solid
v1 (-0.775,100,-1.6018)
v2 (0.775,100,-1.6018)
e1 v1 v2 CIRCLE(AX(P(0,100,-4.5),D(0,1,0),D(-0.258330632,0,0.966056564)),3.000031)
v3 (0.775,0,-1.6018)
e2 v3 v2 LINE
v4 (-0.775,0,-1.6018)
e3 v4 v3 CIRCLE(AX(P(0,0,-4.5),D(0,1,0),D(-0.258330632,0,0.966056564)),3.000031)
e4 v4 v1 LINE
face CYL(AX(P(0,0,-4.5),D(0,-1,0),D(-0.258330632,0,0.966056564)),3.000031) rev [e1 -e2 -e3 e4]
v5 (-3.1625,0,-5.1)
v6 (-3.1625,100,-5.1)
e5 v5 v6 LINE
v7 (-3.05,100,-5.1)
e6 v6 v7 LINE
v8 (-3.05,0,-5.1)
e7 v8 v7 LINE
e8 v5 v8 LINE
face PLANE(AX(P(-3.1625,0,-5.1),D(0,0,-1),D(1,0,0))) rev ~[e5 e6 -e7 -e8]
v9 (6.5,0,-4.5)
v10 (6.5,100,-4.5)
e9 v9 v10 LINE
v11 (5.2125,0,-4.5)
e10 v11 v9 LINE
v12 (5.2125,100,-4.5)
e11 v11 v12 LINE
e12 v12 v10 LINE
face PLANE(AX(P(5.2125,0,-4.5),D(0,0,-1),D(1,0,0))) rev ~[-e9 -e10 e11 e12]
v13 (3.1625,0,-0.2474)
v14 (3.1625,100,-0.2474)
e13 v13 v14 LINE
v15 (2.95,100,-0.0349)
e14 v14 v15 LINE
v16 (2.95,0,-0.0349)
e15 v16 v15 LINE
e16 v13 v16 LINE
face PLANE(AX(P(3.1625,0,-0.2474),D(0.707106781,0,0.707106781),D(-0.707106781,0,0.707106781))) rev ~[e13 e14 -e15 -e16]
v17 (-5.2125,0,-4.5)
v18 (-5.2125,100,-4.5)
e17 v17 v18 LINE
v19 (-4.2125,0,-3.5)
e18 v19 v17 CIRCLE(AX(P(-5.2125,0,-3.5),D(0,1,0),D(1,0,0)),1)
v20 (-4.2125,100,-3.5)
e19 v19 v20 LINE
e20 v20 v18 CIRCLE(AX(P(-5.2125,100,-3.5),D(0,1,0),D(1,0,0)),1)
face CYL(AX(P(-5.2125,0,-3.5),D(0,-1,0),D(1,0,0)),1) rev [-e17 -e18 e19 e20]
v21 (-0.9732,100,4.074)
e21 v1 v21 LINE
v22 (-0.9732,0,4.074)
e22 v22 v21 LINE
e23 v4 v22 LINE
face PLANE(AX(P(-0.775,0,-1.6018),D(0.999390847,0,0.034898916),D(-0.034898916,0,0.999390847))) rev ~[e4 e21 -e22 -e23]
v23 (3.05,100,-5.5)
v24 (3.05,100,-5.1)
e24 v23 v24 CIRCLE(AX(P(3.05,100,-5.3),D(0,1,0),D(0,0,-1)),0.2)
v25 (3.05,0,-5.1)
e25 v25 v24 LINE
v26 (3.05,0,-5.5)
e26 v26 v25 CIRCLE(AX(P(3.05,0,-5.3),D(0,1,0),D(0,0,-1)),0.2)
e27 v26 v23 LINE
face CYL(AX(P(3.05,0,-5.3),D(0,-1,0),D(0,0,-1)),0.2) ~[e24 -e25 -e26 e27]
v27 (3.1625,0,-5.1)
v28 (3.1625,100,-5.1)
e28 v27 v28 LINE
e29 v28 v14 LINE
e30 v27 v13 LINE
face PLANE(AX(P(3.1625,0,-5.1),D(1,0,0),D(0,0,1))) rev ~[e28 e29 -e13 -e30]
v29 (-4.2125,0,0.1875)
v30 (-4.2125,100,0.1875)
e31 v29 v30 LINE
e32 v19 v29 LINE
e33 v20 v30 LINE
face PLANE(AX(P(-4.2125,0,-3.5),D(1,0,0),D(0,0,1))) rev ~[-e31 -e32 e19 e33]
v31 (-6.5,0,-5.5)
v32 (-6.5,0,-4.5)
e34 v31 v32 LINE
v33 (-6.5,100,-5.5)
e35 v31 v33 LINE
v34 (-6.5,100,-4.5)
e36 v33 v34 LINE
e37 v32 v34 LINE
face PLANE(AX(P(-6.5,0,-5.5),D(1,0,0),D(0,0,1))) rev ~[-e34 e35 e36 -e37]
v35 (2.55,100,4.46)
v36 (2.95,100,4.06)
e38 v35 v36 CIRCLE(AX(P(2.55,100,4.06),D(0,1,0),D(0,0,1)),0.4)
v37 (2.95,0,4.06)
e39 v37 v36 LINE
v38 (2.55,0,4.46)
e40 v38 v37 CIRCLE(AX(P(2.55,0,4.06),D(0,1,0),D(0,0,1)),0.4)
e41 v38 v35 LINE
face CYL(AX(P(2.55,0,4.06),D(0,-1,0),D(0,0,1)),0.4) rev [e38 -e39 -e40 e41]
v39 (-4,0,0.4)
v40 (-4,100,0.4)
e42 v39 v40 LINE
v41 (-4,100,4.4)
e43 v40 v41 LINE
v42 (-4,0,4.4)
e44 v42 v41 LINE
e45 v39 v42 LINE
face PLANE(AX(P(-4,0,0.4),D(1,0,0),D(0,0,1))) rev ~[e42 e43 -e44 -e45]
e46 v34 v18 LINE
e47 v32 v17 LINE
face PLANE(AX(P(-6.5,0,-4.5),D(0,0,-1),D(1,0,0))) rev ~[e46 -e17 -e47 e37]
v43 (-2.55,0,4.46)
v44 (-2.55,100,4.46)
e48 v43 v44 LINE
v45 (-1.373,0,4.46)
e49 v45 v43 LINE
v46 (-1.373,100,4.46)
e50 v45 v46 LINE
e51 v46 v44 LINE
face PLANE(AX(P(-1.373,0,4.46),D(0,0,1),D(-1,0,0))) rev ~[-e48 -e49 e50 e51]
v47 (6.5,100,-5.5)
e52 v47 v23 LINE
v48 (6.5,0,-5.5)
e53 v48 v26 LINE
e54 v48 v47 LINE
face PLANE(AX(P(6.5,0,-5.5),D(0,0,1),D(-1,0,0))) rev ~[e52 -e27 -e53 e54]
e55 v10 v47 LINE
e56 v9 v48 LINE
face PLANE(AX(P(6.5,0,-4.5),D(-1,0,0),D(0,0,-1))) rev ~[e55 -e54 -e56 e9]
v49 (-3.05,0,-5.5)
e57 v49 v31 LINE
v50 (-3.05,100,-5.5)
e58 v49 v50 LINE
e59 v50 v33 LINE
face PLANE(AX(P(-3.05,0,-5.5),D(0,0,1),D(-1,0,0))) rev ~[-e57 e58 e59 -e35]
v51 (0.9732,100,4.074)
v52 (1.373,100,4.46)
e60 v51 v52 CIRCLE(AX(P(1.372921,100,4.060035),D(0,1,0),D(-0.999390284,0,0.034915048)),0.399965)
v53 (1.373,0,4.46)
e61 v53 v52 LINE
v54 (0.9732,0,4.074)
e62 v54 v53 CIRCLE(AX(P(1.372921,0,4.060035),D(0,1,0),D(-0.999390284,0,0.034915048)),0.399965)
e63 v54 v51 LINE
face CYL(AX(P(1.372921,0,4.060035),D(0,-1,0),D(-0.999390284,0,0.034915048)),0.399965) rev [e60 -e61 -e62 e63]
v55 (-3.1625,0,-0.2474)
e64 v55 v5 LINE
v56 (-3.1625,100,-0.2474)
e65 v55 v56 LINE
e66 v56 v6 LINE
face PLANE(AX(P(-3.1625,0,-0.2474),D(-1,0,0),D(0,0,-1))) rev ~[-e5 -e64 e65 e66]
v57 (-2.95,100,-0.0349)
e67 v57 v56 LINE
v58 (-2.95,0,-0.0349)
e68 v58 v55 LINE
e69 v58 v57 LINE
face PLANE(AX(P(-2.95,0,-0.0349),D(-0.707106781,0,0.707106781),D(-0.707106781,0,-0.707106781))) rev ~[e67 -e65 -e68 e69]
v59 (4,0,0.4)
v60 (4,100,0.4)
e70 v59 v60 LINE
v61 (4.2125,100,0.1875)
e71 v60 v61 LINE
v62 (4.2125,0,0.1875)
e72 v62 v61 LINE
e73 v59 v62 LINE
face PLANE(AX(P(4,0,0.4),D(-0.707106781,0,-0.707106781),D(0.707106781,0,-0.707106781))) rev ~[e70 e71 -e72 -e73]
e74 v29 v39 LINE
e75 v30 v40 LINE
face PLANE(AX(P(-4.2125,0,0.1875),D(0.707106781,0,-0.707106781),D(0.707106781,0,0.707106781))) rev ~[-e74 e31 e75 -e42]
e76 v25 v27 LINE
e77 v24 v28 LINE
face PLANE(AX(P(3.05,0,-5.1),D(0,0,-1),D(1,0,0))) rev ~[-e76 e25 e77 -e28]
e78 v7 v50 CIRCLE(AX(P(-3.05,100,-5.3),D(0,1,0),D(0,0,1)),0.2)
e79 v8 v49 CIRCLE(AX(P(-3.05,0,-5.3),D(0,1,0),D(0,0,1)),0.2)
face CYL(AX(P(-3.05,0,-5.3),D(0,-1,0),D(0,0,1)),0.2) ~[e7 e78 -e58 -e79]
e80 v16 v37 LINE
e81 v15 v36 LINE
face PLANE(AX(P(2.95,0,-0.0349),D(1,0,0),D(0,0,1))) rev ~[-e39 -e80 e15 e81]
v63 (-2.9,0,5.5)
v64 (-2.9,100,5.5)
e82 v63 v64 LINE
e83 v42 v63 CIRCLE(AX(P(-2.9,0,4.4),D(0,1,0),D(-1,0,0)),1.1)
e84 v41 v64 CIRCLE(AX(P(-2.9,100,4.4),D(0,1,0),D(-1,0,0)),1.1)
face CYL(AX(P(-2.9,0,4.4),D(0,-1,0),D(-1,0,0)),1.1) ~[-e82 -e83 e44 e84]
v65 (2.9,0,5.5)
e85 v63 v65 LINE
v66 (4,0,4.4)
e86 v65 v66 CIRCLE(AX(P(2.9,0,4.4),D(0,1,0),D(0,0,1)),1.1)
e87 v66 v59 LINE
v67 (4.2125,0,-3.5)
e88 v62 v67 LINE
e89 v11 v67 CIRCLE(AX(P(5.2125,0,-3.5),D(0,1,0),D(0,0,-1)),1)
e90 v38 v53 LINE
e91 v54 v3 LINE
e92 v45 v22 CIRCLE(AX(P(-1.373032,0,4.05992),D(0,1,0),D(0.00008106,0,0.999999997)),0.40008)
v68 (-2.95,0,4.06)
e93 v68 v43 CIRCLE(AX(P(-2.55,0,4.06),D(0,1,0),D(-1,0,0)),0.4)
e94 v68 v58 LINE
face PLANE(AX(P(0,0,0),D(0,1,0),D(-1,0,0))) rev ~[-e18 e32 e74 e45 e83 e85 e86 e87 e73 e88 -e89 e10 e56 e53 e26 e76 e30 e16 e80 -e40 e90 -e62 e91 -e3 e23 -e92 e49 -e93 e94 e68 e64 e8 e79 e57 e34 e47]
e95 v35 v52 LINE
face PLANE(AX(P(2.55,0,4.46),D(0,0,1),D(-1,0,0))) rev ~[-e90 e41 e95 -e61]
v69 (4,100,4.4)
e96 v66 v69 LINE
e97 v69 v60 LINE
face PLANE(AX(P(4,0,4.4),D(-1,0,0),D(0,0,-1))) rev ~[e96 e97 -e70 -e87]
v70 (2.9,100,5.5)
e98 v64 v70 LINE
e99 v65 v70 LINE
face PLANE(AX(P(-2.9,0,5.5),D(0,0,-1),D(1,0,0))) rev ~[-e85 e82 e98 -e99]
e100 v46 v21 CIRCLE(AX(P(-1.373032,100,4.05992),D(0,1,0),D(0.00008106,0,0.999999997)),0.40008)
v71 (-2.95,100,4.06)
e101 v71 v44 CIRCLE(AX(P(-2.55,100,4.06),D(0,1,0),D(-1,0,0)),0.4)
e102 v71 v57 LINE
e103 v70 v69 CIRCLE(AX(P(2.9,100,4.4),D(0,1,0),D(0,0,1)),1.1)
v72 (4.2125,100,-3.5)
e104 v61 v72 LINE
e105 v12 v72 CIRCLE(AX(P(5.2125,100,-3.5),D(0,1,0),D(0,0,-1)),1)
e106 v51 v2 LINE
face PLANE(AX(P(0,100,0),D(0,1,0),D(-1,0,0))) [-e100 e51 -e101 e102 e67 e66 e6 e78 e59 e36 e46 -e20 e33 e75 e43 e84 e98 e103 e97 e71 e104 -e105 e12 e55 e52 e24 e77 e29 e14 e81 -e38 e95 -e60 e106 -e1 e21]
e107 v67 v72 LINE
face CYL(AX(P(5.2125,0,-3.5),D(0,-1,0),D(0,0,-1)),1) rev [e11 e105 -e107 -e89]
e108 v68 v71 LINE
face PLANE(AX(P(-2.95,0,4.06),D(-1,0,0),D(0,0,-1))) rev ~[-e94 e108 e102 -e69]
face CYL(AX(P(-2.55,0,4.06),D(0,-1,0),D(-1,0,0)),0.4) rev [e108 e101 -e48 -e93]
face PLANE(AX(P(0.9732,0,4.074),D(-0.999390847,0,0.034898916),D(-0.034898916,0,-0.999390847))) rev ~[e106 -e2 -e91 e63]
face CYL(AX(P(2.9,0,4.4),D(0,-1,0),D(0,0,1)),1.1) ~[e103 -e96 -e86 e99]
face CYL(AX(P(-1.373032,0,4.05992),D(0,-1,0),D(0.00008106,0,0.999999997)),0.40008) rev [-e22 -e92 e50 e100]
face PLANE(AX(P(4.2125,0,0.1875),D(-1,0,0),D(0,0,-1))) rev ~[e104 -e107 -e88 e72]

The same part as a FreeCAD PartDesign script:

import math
import FreeCAD as App
import Part
import Sketcher
Q = App.Units.Quantity

doc = App.newDocument("Part")
body = doc.addObject("PartDesign::Body", "Body")

# Sketch on XZ plane
sketch1 = body.newObject("Sketcher::SketchObject", "Sketch")
sketch1.AttachmentSupport = (doc.getObject("XZ_Plane"), [""])
sketch1.MapMode = "FlatFace"
sketch1.addGeometry([
    Part.LineSegment(App.Vector(6.5, -5.5, 0), App.Vector(3.05, -5.5, 0)),  # 0
    Part.ArcOfCircle(Part.Circle(App.Vector(3.05, -5.3, 0), App.Vector(0, 0, 1), 0.2), math.radians(90), math.radians(270)),  # 1
    Part.LineSegment(App.Vector(3.05, -5.1, 0), App.Vector(3.16, -5.1, 0)),  # 2
    Part.LineSegment(App.Vector(3.16, -5.1, 0), App.Vector(3.16, -0.25, 0)),  # 3
    Part.LineSegment(App.Vector(3.16, -0.25, 0), App.Vector(2.95, -0.03, 0)),  # 4
    Part.LineSegment(App.Vector(2.95, -0.03, 0), App.Vector(2.95, 4.06, 0)),  # 5
    Part.ArcOfCircle(Part.Circle(App.Vector(2.55, 4.06, 0), App.Vector(0, 0, 1), 0.4), math.radians(0), math.radians(90)),  # 6
    Part.LineSegment(App.Vector(2.55, 4.46, 0), App.Vector(1.37, 4.46, 0)),  # 7
    Part.ArcOfCircle(Part.Circle(App.Vector(1.37, 4.06, 0), App.Vector(0, 0, 1), 0.4), math.radians(90), math.radians(178)),  # 8
    Part.LineSegment(App.Vector(0.97, 4.07, 0), App.Vector(0.78, -1.6, 0)),  # 9
    Part.ArcOfCircle(Part.Circle(App.Vector(0, -4.5, 0), App.Vector(0, 0, 1), 3), math.radians(75), math.radians(105)),  # 10
    Part.LineSegment(App.Vector(-0.78, -1.6, 0), App.Vector(-0.97, 4.07, 0)),  # 11
    Part.ArcOfCircle(Part.Circle(App.Vector(-1.37, 4.06, 0), App.Vector(0, 0, 1), 0.4), math.radians(2), math.radians(90)),  # 12
    Part.LineSegment(App.Vector(-1.37, 4.46, 0), App.Vector(-2.55, 4.46, 0)),  # 13
    Part.ArcOfCircle(Part.Circle(App.Vector(-2.55, 4.06, 0), App.Vector(0, 0, 1), 0.4), math.radians(90), math.radians(180)),  # 14
    Part.LineSegment(App.Vector(-2.95, 4.06, 0), App.Vector(-2.95, -0.03, 0)),  # 15
    Part.LineSegment(App.Vector(-2.95, -0.03, 0), App.Vector(-3.16, -0.25, 0)),  # 16
    Part.LineSegment(App.Vector(-3.16, -0.25, 0), App.Vector(-3.16, -5.1, 0)),  # 17
    Part.LineSegment(App.Vector(-3.16, -5.1, 0), App.Vector(-3.05, -5.1, 0)),  # 18
    Part.ArcOfCircle(Part.Circle(App.Vector(-3.05, -5.3, 0), App.Vector(0, 0, 1), 0.2), math.radians(-90), math.radians(90)),  # 19
    Part.LineSegment(App.Vector(-3.05, -5.5, 0), App.Vector(-6.5, -5.5, 0)),  # 20
    Part.LineSegment(App.Vector(-6.5, -5.5, 0), App.Vector(-6.5, -4.5, 0)),  # 21
    Part.LineSegment(App.Vector(-6.5, -4.5, 0), App.Vector(-5.21, -4.5, 0)),  # 22
    Part.ArcOfCircle(Part.Circle(App.Vector(-5.21, -3.5, 0), App.Vector(0, 0, 1), 1), math.radians(-90), math.radians(0)),  # 23
    Part.LineSegment(App.Vector(-4.21, -3.5, 0), App.Vector(-4.21, 0.19, 0)),  # 24
    Part.LineSegment(App.Vector(-4.21, 0.19, 0), App.Vector(-4, 0.4, 0)),  # 25
    Part.LineSegment(App.Vector(-4, 0.4, 0), App.Vector(-4, 4.4, 0)),  # 26
    Part.ArcOfCircle(Part.Circle(App.Vector(-2.9, 4.4, 0), App.Vector(0, 0, 1), 1.1), math.radians(90), math.radians(180)),  # 27
    Part.LineSegment(App.Vector(-2.9, 5.5, 0), App.Vector(2.9, 5.5, 0)),  # 28
    Part.ArcOfCircle(Part.Circle(App.Vector(2.9, 4.4, 0), App.Vector(0, 0, 1), 1.1), math.radians(0), math.radians(90)),  # 29
    Part.LineSegment(App.Vector(4, 4.4, 0), App.Vector(4, 0.4, 0)),  # 30
    Part.LineSegment(App.Vector(4, 0.4, 0), App.Vector(4.21, 0.19, 0)),  # 31
    Part.LineSegment(App.Vector(4.21, 0.19, 0), App.Vector(4.21, -3.5, 0)),  # 32
    Part.ArcOfCircle(Part.Circle(App.Vector(5.21, -3.5, 0), App.Vector(0, 0, 1), 1), math.radians(180), math.radians(270)),  # 33
    Part.LineSegment(App.Vector(5.21, -4.5, 0), App.Vector(6.5, -4.5, 0)),  # 34
    Part.LineSegment(App.Vector(6.5, -4.5, 0), App.Vector(6.5, -5.5, 0)),  # 35
], False)
sketch1.addConstraint([
    Sketcher.Constraint("Tangent", 0, 2, 1, 2),
    Sketcher.Constraint("Tangent", 1, 1, 2, 1),
    Sketcher.Constraint("Coincident", 2, 2, 3, 1),
    Sketcher.Constraint("Coincident", 3, 2, 4, 1),
    Sketcher.Constraint("Coincident", 4, 2, 5, 1),
    Sketcher.Constraint("Tangent", 5, 2, 6, 1),
    Sketcher.Constraint("Tangent", 6, 2, 7, 1),
    Sketcher.Constraint("Tangent", 7, 2, 8, 1),
    Sketcher.Constraint("Tangent", 8, 2, 9, 1),
    Sketcher.Constraint("Coincident", 9, 2, 10, 1),
    Sketcher.Constraint("Coincident", 10, 2, 11, 1),
    Sketcher.Constraint("Tangent", 11, 2, 12, 1),
    Sketcher.Constraint("Tangent", 12, 2, 13, 1),
    Sketcher.Constraint("Tangent", 13, 2, 14, 1),
    Sketcher.Constraint("Tangent", 14, 2, 15, 1),
    Sketcher.Constraint("Coincident", 15, 2, 16, 1),
    Sketcher.Constraint("Coincident", 16, 2, 17, 1),
    Sketcher.Constraint("Coincident", 17, 2, 18, 1),
    Sketcher.Constraint("Tangent", 18, 2, 19, 2),
    Sketcher.Constraint("Tangent", 19, 1, 20, 1),
    Sketcher.Constraint("Coincident", 20, 2, 21, 1),
    Sketcher.Constraint("Coincident", 21, 2, 22, 1),
    Sketcher.Constraint("Tangent", 22, 2, 23, 1),
    Sketcher.Constraint("Tangent", 23, 2, 24, 1),
    Sketcher.Constraint("Coincident", 24, 2, 25, 1),
    Sketcher.Constraint("Coincident", 25, 2, 26, 1),
    Sketcher.Constraint("Tangent", 26, 2, 27, 2),
    Sketcher.Constraint("Tangent", 27, 1, 28, 1),
    Sketcher.Constraint("Tangent", 28, 2, 29, 2),
    Sketcher.Constraint("Tangent", 29, 1, 30, 1),
    Sketcher.Constraint("Coincident", 30, 2, 31, 1),
    Sketcher.Constraint("Coincident", 31, 2, 32, 1),
    Sketcher.Constraint("Tangent", 32, 2, 33, 1),
    Sketcher.Constraint("Tangent", 33, 2, 34, 1),
    Sketcher.Constraint("Coincident", 34, 2, 35, 1),
    Sketcher.Constraint("Coincident", 35, 2, 0, 1),
    Sketcher.Constraint("Horizontal", 0),
    Sketcher.Constraint("Horizontal", 2),
    Sketcher.Constraint("Vertical", 3),
    Sketcher.Constraint("Vertical", 5),
    Sketcher.Constraint("Horizontal", 7),
    Sketcher.Constraint("Horizontal", 13),
    Sketcher.Constraint("Vertical", 15),
    Sketcher.Constraint("Vertical", 17),
    Sketcher.Constraint("Horizontal", 18),
    Sketcher.Constraint("Horizontal", 20),
    Sketcher.Constraint("Vertical", 21),
    Sketcher.Constraint("Horizontal", 22),
    Sketcher.Constraint("Vertical", 24),
    Sketcher.Constraint("Vertical", 26),
    Sketcher.Constraint("Horizontal", 28),
    Sketcher.Constraint("Vertical", 30),
    Sketcher.Constraint("Vertical", 32),
    Sketcher.Constraint("Horizontal", 34),
    Sketcher.Constraint("Vertical", 35),
    Sketcher.Constraint("Equal", 6, 8),
    Sketcher.Constraint("Equal", 8, 12),
    Sketcher.Constraint("Equal", 12, 14),
    Sketcher.Constraint("Equal", 1, 19),
    Sketcher.Constraint("Equal", 27, 29),
    Sketcher.Constraint("Equal", 23, 33),
    Sketcher.Constraint("Symmetric", 8, 3, 12, 3, -2),
    Sketcher.Constraint("Symmetric", 1, 3, 19, 3, -2),
    Sketcher.Constraint("Symmetric", 23, 3, 33, 3, -2),
    Sketcher.Constraint("Symmetric", 9, 2, 10, 2, -2),
    Sketcher.Constraint("Symmetric", 4, 2, 15, 2, -2),
    Sketcher.Constraint("Symmetric", 3, 2, 16, 2, -2),
    Sketcher.Constraint("Symmetric", 25, 2, 30, 2, -2),
    Sketcher.Constraint("Perpendicular", 4, 16),
    Sketcher.Constraint("Parallel", 16, 25),
    Sketcher.Constraint("Perpendicular", 25, 31),
    Sketcher.Constraint("Horizontal", 10, 3, 21, 2),
    Sketcher.Constraint("Equal", 0, 20),
    Sketcher.Constraint("Equal", 16, 25),
    Sketcher.Constraint("Radius", 10, Q("3 mm")),
    Sketcher.Constraint("Radius", 23, Q("1 mm")),
    Sketcher.Constraint("Radius", 1, Q("0.2 mm")),
    Sketcher.Constraint("Radius", 6, Q("0.4 mm")),
    Sketcher.Constraint("Radius", 27, Q("1.1 mm")),
    Sketcher.Constraint("DistanceY", 21, 1, 21, 2, Q("1 mm")),
    Sketcher.Constraint("DistanceY", 26, 1, 26, 2, Q("4 mm")),
    Sketcher.Constraint("Angle", 9, Q("-92 deg")),
    Sketcher.Constraint("DistanceX", 28, 1, 28, 2, Q("5.8 mm")),
    Sketcher.Constraint("DistanceX", 0, 2, 0, 1, Q("3.45 mm")),
    Sketcher.Constraint("DistanceY", 1, 3, -1, 1, Q("5.3 mm")),
    Sketcher.Constraint("DistanceY", -1, 1, 27, 3, Q("4.4 mm")),
    Sketcher.Constraint("DistanceX", 20, 2, -1, 1, Q("6.5 mm")),
    Sketcher.Constraint("DistanceX", 6, 3, 1, 3, Q("0.5 mm")),
    Sketcher.Constraint("DistanceX", 7, 2, 7, 1, Q("1.177 mm")),
    Sketcher.Constraint("DistanceY", 5, 1, 5, 2, Q("4.095 mm")),
    Sketcher.Constraint("DistanceY", -1, 1, 6, 3, Q("4.06 mm")),
    Sketcher.Constraint("DistanceX", 2, 1, 2, 2, Q("0.1125 mm")),
])
pad1 = body.newObject("PartDesign::Pad", "Pad")
pad1.Profile = sketch1
pad1.Length = 100
pad1.Reversed = True

doc.recompute()
